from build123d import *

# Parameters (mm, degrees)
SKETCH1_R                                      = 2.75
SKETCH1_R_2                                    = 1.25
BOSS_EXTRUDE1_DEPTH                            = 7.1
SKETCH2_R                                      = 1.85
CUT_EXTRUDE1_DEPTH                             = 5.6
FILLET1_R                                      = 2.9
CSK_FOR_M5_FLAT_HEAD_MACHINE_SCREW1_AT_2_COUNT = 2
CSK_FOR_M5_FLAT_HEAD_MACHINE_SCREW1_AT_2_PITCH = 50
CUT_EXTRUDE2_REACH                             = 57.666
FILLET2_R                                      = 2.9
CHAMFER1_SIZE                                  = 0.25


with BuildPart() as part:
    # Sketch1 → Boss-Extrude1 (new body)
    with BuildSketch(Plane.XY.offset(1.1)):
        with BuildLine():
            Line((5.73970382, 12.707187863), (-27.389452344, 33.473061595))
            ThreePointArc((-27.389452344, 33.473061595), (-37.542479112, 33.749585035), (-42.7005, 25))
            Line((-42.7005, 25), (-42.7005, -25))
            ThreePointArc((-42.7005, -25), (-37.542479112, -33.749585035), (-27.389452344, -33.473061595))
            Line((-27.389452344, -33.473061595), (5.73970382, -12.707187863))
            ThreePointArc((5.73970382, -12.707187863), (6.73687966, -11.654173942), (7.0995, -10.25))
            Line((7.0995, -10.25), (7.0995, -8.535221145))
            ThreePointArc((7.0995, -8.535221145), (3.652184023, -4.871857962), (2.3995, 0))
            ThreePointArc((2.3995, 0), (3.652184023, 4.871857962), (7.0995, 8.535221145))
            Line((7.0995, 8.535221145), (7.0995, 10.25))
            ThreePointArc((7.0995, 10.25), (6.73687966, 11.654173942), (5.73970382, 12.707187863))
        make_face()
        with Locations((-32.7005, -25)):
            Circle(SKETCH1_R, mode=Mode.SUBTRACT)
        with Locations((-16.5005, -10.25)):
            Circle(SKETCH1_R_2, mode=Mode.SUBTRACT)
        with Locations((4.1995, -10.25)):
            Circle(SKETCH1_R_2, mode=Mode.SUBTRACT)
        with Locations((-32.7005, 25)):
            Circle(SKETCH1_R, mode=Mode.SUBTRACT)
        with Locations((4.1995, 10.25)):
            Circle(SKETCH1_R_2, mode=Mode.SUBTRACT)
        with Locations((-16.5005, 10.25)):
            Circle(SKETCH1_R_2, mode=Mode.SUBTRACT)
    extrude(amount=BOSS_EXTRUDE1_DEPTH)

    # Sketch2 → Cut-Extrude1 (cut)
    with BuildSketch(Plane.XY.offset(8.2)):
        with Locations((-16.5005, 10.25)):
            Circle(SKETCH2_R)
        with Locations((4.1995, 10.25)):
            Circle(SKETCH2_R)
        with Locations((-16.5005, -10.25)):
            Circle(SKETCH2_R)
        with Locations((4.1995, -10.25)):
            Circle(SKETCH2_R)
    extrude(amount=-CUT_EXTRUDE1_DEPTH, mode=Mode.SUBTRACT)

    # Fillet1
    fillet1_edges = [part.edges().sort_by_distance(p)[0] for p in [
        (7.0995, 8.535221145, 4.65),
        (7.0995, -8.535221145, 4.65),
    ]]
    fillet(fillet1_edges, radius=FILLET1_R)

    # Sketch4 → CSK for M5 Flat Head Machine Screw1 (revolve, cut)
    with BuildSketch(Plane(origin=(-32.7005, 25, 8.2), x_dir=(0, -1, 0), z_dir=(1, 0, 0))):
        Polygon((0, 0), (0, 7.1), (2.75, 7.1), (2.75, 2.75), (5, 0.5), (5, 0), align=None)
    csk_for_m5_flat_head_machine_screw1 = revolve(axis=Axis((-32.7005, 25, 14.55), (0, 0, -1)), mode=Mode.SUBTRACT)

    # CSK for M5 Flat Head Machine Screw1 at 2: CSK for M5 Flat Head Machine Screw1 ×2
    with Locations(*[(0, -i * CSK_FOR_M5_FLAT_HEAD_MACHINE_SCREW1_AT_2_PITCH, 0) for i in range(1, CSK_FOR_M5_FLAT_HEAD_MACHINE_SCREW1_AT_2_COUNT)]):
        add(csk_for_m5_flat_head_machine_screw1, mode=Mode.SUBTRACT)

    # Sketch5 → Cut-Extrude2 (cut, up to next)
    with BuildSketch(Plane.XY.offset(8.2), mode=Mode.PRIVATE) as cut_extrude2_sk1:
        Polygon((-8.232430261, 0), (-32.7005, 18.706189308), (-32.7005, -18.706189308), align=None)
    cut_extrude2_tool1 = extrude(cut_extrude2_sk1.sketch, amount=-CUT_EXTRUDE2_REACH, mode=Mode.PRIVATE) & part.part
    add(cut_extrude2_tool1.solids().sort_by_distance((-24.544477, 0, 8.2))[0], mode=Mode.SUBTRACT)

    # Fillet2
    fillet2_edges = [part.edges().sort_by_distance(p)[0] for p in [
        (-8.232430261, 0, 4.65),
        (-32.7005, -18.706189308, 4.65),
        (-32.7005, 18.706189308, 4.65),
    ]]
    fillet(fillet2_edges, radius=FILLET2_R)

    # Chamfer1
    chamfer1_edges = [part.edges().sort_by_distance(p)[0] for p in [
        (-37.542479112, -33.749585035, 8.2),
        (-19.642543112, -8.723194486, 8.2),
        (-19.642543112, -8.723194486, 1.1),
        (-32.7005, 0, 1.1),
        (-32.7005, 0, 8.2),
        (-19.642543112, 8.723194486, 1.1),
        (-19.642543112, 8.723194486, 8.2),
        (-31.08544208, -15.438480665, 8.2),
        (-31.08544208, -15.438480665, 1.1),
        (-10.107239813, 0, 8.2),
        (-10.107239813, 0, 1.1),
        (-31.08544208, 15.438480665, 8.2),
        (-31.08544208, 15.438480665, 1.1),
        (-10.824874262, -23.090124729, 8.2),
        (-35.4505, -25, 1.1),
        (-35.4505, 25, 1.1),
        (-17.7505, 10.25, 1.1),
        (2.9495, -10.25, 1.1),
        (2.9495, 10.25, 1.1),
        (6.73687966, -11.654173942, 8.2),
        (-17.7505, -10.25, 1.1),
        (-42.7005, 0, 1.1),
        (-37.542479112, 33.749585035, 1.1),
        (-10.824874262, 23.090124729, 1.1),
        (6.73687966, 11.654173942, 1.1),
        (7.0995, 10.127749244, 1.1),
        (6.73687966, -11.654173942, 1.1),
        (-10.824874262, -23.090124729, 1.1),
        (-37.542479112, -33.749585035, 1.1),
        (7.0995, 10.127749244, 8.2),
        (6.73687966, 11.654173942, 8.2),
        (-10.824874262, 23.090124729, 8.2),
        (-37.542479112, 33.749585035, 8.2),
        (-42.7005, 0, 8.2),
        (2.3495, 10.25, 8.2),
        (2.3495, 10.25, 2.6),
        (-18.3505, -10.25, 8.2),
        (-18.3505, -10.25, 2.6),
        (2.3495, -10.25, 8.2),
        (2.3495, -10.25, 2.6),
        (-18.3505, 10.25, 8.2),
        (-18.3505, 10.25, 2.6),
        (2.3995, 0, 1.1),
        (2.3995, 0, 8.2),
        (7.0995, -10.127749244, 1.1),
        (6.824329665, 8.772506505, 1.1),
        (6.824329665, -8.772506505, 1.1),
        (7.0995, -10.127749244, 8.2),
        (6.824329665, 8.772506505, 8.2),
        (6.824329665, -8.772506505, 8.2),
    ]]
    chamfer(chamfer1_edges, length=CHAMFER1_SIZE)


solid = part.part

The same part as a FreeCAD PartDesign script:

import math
import FreeCAD as App
import Part
import Sketcher

V = App.Vector
Q = App.Units.Quantity


def edges_at(feature, points):
    """Names of the edges that pass closest to the given points."""
    edges = feature.Shape.Edges
    near = lambda p: min(range(len(edges)), key=lambda i: edges[i].distToShape(Part.Vertex(*p))[0])
    return sorted({f"Edge{near(p) + 1}" for p in points})


def add_polygon(sketch, points):
    """Adds a closed chain of lines whose ends are joined by coincident constraints."""
    first, n = sketch.GeometryCount, len(points)
    for a, b in zip(points, points[1:] + points[:1]):
        sketch.addGeometry(Part.LineSegment(App.Vector(*a, 0), App.Vector(*b, 0)), False)
    for i in range(n):
        sketch.addConstraint(Sketcher.Constraint("Coincident", first + i, 2, first + (i + 1) % n, 1))

doc = App.newDocument("Part")
params = doc.addObject("Spreadsheet::Sheet", "Params")
for row, (alias, value) in enumerate([
    ("sketch1_radius", "10 mm"),
    ("sketch1_diameter", "5.5 mm"),
    ("sketch1_diameter2", "2.5 mm"),
    ("sketch1_radius2", "2.9 mm"),
    ("sketch1_radius3", "10.1 mm"),
    ("pad1_length", "7.1 mm"),
    ("sketch2_diameter", "3.7 mm"),
    ("pocket1_length", "5.6 mm"),
    ("fillet_radius", "2.9 mm"),
    ("sketch3_width", "5 mm"),
    ("sketch3_height", "7.1 mm"),
    ("sketch3_height2", "0.5 mm"),
    ("sketch3_width2", "2.75 mm"),
    ("groove_angle", "360 deg"),
    ("linearpattern_pitch", "50 mm"),
    ("fillet2_radius", "2.9 mm"),
    ("chamfer_size", "0.25 mm"),
], start=1):
    params.set(f"A{row}", alias)
    params.set(f"B{row}", "=" + value)
    params.setAlias(f"B{row}", alias)

body = doc.addObject("PartDesign::Body", "Body")

# Sketch on XY plane
sketch1 = doc.addObject("Sketcher::SketchObject", "Sketch")
body.addObject(sketch1)
sketch1.AttachmentSupport = (doc.XY_Plane, [""])
sketch1.MapMode = "FlatFace"
sketch1.AttachmentOffset = App.Placement(V(0, 0, 1.1), App.Rotation())
sketch1.addGeometry(Part.LineSegment(V(5.739704, 12.707188, 0), V(-27.389452, 33.473062, 0)), False)
sketch1.addGeometry(Part.ArcOfCircle(Part.Circle(V(-32.7005, 25, 0), V(0, 0, 1), 10), math.radians(57.91987), math.radians(180)), False)
sketch1.addGeometry(Part.LineSegment(V(-42.7005, 25, 0), V(-42.7005, -25, 0)), False)
sketch1.addGeometry(Part.ArcOfCircle(Part.Circle(V(-32.7005, -25, 0), V(0, 0, 1), 10), math.radians(180), math.radians(302.08013)), False)
sketch1.addGeometry(Part.LineSegment(V(-27.389452, -33.473062, 0), V(5.739704, -12.707188, 0)), False)
sketch1.addGeometry(Part.ArcOfCircle(Part.Circle(V(4.1995, -10.25, 0), V(0, 0, 1), 2.9), math.radians(-57.91987), math.radians(0)), False)
sketch1.addGeometry(Part.LineSegment(V(7.0995, -10.25, 0), V(7.0995, -8.535221, 0)), False)
sketch1.addGeometry(Part.ArcOfCircle(Part.Circle(V(12.4995, 0, 0), V(0, 0, 1), 10.1), math.radians(180), math.radians(237.679587)), False)
sketch1.addGeometry(Part.ArcOfCircle(Part.Circle(V(12.4995, 0, 0), V(0, 0, 1), 10.1), math.radians(122.320413), math.radians(180)), False)
sketch1.addGeometry(Part.LineSegment(V(7.0995, 8.535221, 0), V(7.0995, 10.25, 0)), False)
sketch1.addGeometry(Part.ArcOfCircle(Part.Circle(V(4.1995, 10.25, 0), V(0, 0, 1), 2.9), math.radians(0), math.radians(57.91987)), False)
sketch1.addGeometry(Part.Circle(V(-32.7005, -25, 0), V(0, 0, 1), 2.75), False)
sketch1.addGeometry(Part.Circle(V(-16.5005, -10.25, 0), V(0, 0, 1), 1.25), False)
sketch1.addGeometry(Part.Circle(V(4.1995, -10.25, 0), V(0, 0, 1), 1.25), False)
sketch1.addGeometry(Part.Circle(V(-16.5005, 10.25, 0), V(0, 0, 1), 1.25), False)
sketch1.addGeometry(Part.Circle(V(-32.7005, 25, 0), V(0, 0, 1), 2.75), False)
sketch1.addGeometry(Part.Circle(V(4.1995, 10.25, 0), V(0, 0, 1), 1.25), False)
sketch1.addConstraint(Sketcher.Constraint("Tangent", 0, 2, 1, 1))
sketch1.addConstraint(Sketcher.Constraint("Tangent", 1, 2, 2, 1))
sketch1.addConstraint(Sketcher.Constraint("Tangent", 2, 2, 3, 1))
sketch1.addConstraint(Sketcher.Constraint("Tangent", 3, 2, 4, 1))
sketch1.addConstraint(Sketcher.Constraint("Tangent", 4, 2, 5, 1))
sketch1.addConstraint(Sketcher.Constraint("Tangent", 5, 2, 6, 1))
sketch1.addConstraint(Sketcher.Constraint("Coincident", 6, 2, 7, 2))
sketch1.addConstraint(Sketcher.Constraint("Tangent", 7, 1, 8, 2))
sketch1.addConstraint(Sketcher.Constraint("Coincident", 8, 1, 9, 1))
sketch1.addConstraint(Sketcher.Constraint("Tangent", 9, 2, 10, 1))
sketch1.addConstraint(Sketcher.Constraint("Tangent", 10, 2, 0, 1))
sketch1.addConstraint(Sketcher.Constraint("Vertical", 2))
sketch1.addConstraint(Sketcher.Constraint("Vertical", 6))
sketch1.addConstraint(Sketcher.Constraint("Vertical", 9))
sketch1.addConstraint(Sketcher.Constraint("Coincident", 11, 3, 3, 3))
sketch1.addConstraint(Sketcher.Constraint("Coincident", 13, 3, 5, 3))
sketch1.addConstraint(Sketcher.Constraint("Coincident", 15, 3, 1, 3))
sketch1.addConstraint(Sketcher.Constraint("Coincident", 16, 3, 10, 3))
sketch1.addConstraint(Sketcher.Constraint("Equal", 1, 3))
sketch1.addConstraint(Sketcher.Constraint("Equal", 7, 8))
sketch1.addConstraint(Sketcher.Constraint("Equal", 5, 10))
sketch1.addConstraint(Sketcher.Constraint("Equal", 12, 13))
sketch1.addConstraint(Sketcher.Constraint("Equal", 13, 14))
sketch1.addConstraint(Sketcher.Constraint("Equal", 11, 15))
sketch1.addConstraint(Sketcher.Constraint("Equal", 14, 16))
sketch1.addConstraint(Sketcher.Constraint("Symmetric", 5, 3, 10, 3, -1))
sketch1.addConstraint(Sketcher.Constraint("Symmetric", 12, 3, 14, 3, -1))
sketch1.addConstraint(Sketcher.Constraint("PointOnObject", 7, 3, -1))
sketch1.addConstraint(Sketcher.Constraint("PointOnObject", 7, 1, -1))
sketch1.addConstraint(Sketcher.Constraint("Horizontal", 5, 3, 12, 3))
sketch1.addConstraint(Sketcher.Constraint("Vertical", 0, 2, 3, 2))
sketch1.addConstraint(Sketcher.Constraint("Radius", 1, Q("10 mm")))
sketch1.addConstraint(Sketcher.Constraint("Diameter", 11, Q("5.5 mm")))
sketch1.addConstraint(Sketcher.Constraint("Diameter", 12, Q("2.5 mm")))
sketch1.addConstraint(Sketcher.Constraint("Radius", 5, Q("2.9 mm")))
sketch1.addConstraint(Sketcher.Constraint("Radius", 7, Q("10.1 mm")))
sketch1.addConstraint(Sketcher.Constraint("DistanceY", 2, 2, 2, 1, Q("50 mm")))
sketch1.addConstraint(Sketcher.Constraint("DistanceX", 12, 3, 7, 3, Q("29 mm")))
sketch1.addConstraint(Sketcher.Constraint("DistanceX", 3, 3, 5, 3, Q("36.9 mm")))
sketch1.addConstraint(Sketcher.Constraint("DistanceX", 5, 3, 7, 3, Q("8.3 mm")))
sketch1.addConstraint(Sketcher.Constraint("DistanceY", 5, 3, 10, 3, Q("20.5 mm")))
sketch1.addConstraint(Sketcher.Constraint("DistanceX", 1, 3, -1, 1, Q("32.7005 mm")))
sketch1.setExpression("Constraints[31]", "Params.sketch1_radius")
sketch1.setExpression("Constraints[32]", "Params.sketch1_diameter")
sketch1.setExpression("Constraints[33]", "Params.sketch1_diameter2")
sketch1.setExpression("Constraints[34]", "Params.sketch1_radius2")
sketch1.setExpression("Constraints[35]", "Params.sketch1_radius3")
pad1 = doc.addObject("PartDesign::Pad", "Pad")
body.addObject(pad1)
pad1.Profile = sketch1
pad1.setExpression("Length", "Params.pad1_length")

# Sketch on XY plane
sketch2 = doc.addObject("Sketcher::SketchObject", "Sketch001")
body.addObject(sketch2)
sketch2.AttachmentSupport = (doc.XY_Plane, [""])
sketch2.MapMode = "FlatFace"
sketch2.AttachmentOffset = App.Placement(V(0, 0, 8.2), App.Rotation())
sketch2.addGeometry(Part.Circle(V(-16.5005, 10.25, 0), V(0, 0, 1), 1.85), False)
sketch2.addGeometry(Part.Circle(V(4.1995, 10.25, 0), V(0, 0, 1), 1.85), False)
sketch2.addGeometry(Part.Circle(V(-16.5005, -10.25, 0), V(0, 0, 1), 1.85), False)
sketch2.addGeometry(Part.Circle(V(4.1995, -10.25, 0), V(0, 0, 1), 1.85), False)
sketch2.addConstraint(Sketcher.Constraint("Equal", 0, 1))
sketch2.addConstraint(Sketcher.Constraint("Equal", 1, 2))
sketch2.addConstraint(Sketcher.Constraint("Equal", 2, 3))
sketch2.addConstraint(Sketcher.Constraint("Symmetric", 0, 3, 2, 3, -1))
sketch2.addConstraint(Sketcher.Constraint("Symmetric", 1, 3, 3, 3, -1))
sketch2.addConstraint(Sketcher.Constraint("Horizontal", 0, 3, 1, 3))
sketch2.addConstraint(Sketcher.Constraint("Diameter", 0, Q("3.7 mm")))
sketch2.addConstraint(Sketcher.Constraint("DistanceX", 0, 3, 1, 3, Q("20.7 mm")))
sketch2.addConstraint(Sketcher.Constraint("DistanceY", 2, 3, 0, 3, Q("20.5 mm")))
sketch2.addConstraint(Sketcher.Constraint("DistanceX", 0, 3, -1, 1, Q("16.5005 mm")))
sketch2.setExpression("Constraints[6]", "Params.sketch2_diameter")
pocket1 = doc.addObject("PartDesign::Pocket", "Pocket")
body.addObject(pocket1)
pocket1.Profile = sketch2
pocket1.setExpression("Length", "Params.pocket1_length")
doc.recompute()

fillet = doc.addObject("PartDesign::Fillet", "Fillet")
body.addObject(fillet)
fillet.Base = (pocket1, edges_at(pocket1, [(7.099, 8.535, 4.65), (7.099, -8.535, 4.65)]))
fillet.setExpression("Radius", "Params.fillet_radius")

# Sketch on YZ plane
sketch3 = doc.addObject("Sketcher::SketchObject", "Sketch002")
body.addObject(sketch3)
sketch3.AttachmentSupport = (doc.YZ_Plane, [""])
sketch3.MapMode = "FlatFace"
sketch3.AttachmentOffset = App.Placement(V(0, 0, -32.7005), App.Rotation())
add_polygon(sketch3, [(25, 1.1), (25, 8.2), (20, 8.2), (20, 7.7), (22.25, 5.45), (22.25, 1.1)])  # lines 0-5
sketch3.addGeometry(Part.LineSegment(V(25, 8.2, 0), V(25, 1.1, 0)), True)  # axis
sketch3.addConstraint(Sketcher.Constraint("Vertical", 0))
sketch3.addConstraint(Sketcher.Constraint("Horizontal", 1))
sketch3.addConstraint(Sketcher.Constraint("Vertical", 2))
sketch3.addConstraint(Sketcher.Constraint("Vertical", 4))
sketch3.addConstraint(Sketcher.Constraint("Horizontal", 5))
sketch3.addConstraint(Sketcher.Constraint("Vertical", 6))
sketch3.addConstraint(Sketcher.Constraint("Coincident", 6, 1, 0, 2))
sketch3.addConstraint(Sketcher.Constraint("Horizontal", 4, 2, 6, 2))
sketch3.addConstraint(Sketcher.Constraint("DistanceX", 1, 2, 1, 1, Q("5 mm")))
sketch3.addConstraint(Sketcher.Constraint("Angle", 3, Q("-45 deg")))
sketch3.addConstraint(Sketcher.Constraint("DistanceY", 0, 1, 0, 2, Q("7.1 mm")))
sketch3.addConstraint(Sketcher.Constraint("DistanceY", 2, 2, 2, 1, Q("0.5 mm")))
sketch3.addConstraint(Sketcher.Constraint("DistanceX", -1, 1, 0, 2, Q("25 mm")))
sketch3.addConstraint(Sketcher.Constraint("DistanceX", 5, 1, 5, 2, Q("2.75 mm")))
sketch3.addConstraint(Sketcher.Constraint("DistanceY", -1, 1, 0, 2, Q("8.2 mm")))
sketch3.setExpression("Constraints[14]", "Params.sketch3_width")
sketch3.setExpression("Constraints[16]", "Params.sketch3_height")
sketch3.setExpression("Constraints[17]", "Params.sketch3_height2")
sketch3.setExpression("Constraints[19]", "Params.sketch3_width2")
groove = doc.addObject("PartDesign::Groove", "Groove")
body.addObject(groove)
groove.Profile = sketch3
groove.ReferenceAxis = (sketch3, ["Axis0"])
groove.setExpression("Angle", "Params.groove_angle")
doc.recompute()

linearpattern = doc.addObject("PartDesign::LinearPattern", "LinearPattern")
body.addObject(linearpattern)
linearpattern.Originals = [groove]
linearpattern.Direction = (doc.Y_Axis, [""])
linearpattern.Mode = "offset"
linearpattern.setExpression("Offset", "Params.linearpattern_pitch")
linearpattern.Occurrences = 2
linearpattern.Reversed = True
body.Tip = linearpattern

# Sketch on XY plane
sketch4 = doc.addObject("Sketcher::SketchObject", "Sketch003")
body.addObject(sketch4)
sketch4.AttachmentSupport = (doc.XY_Plane, [""])
sketch4.MapMode = "FlatFace"
sketch4.AttachmentOffset = App.Placement(V(0, 0, 8.2), App.Rotation())
add_polygon(sketch4, [(-8.23243, 0), (-32.7005, 18.706189), (-32.7005, -18.706189)])  # lines 0-2
sketch4.addConstraint(Sketcher.Constraint("Vertical", 1))
sketch4.addConstraint(Sketcher.Constraint("PointOnObject", 2, 2, -1))
sketch4.addConstraint(Sketcher.Constraint("Equal", 0, 2))
sketch4.addConstraint(Sketcher.Constraint("DistanceY", 1, 2, 1, 1, Q("37.412379 mm")))
sketch4.addConstraint(Sketcher.Constraint("DistanceX", 0, 2, -1, 1, Q("32.7005 mm")))
sketch4.addConstraint(Sketcher.Constraint("Distance", 0, Q("30.79948 mm")))
pocket2 = doc.addObject("PartDesign::Pocket", "Pocket001")
body.addObject(pocket2)
pocket2.Profile = sketch4
pocket2.Type = "UpToFirst"
doc.recompute()

fillet2 = doc.addObject("PartDesign::Fillet", "Fillet001")
body.addObject(fillet2)
fillet2.Base = (pocket2, edges_at(pocket2, [(-8.232, 0, 4.65), (-32.7, -18.706, 4.65), (-32.7, 18.706, 4.65)]))
fillet2.setExpression("Radius", "Params.fillet2_radius")
doc.recompute()

chamfer = doc.addObject("PartDesign::Chamfer", "Chamfer")
body.addObject(chamfer)
chamfer.Base = (fillet2, edges_at(fillet2, [
    (-37.542, -33.75, 8.2),
    (-19.643, -8.723, 8.2),
    (-19.643, -8.723, 1.1),
    (-32.7, 0, 1.1),
    (-32.7, 0, 8.2),
    (-19.643, 8.723, 1.1),
    (-19.643, 8.723, 8.2),
    (-31.085, -15.438, 8.2),
    (-31.085, -15.438, 1.1),
    (-10.107, 0, 8.2),
    (-10.107, 0, 1.1),
    (-31.085, 15.438, 8.2),
    (-31.085, 15.438, 1.1),
    (-10.825, -23.09, 8.2),
    (-35.45, -25, 1.1),
    (-35.45, 25, 1.1),
    (-17.75, 10.25, 1.1),
    (2.95, -10.25, 1.1),
    (2.95, 10.25, 1.1),
    (6.737, -11.654, 8.2),
    (-17.75, -10.25, 1.1),
    (-42.7, 0, 1.1),
    (-37.542, 33.75, 1.1),
    (-10.825, 23.09, 1.1),
    (6.737, 11.654, 1.1),
    (7.099, 10.128, 1.1),
    (6.737, -11.654, 1.1),
    (-10.825, -23.09, 1.1),
    (-37.542, -33.75, 1.1),
    (7.099, 10.128, 8.2),
    (6.737, 11.654, 8.2),
    (-10.825, 23.09, 8.2),
    (-37.542, 33.75, 8.2),
    (-42.7, 0, 8.2),
    (2.349, 10.25, 8.2),
    (2.349, 10.25, 2.6),
    (-18.351, -10.25, 8.2),
    (-18.351, -10.25, 2.6),
    (2.349, -10.25, 8.2),
    (2.349, -10.25, 2.6),
    (-18.351, 10.25, 8.2),
    (-18.351, 10.25, 2.6),
    (3.358, 4.294, 1.1),
    (2.4, 0, 4.65),
    (7.099, -10.128, 1.1),
    (6.824, 8.773, 1.1),
    (6.824, -8.773, 1.1),
    (7.099, -10.128, 8.2),
    (6.824, 8.773, 8.2),
    (6.824, -8.773, 8.2),
]))
chamfer.setExpression("Size", "Params.chamfer_size")

doc.recompute()
